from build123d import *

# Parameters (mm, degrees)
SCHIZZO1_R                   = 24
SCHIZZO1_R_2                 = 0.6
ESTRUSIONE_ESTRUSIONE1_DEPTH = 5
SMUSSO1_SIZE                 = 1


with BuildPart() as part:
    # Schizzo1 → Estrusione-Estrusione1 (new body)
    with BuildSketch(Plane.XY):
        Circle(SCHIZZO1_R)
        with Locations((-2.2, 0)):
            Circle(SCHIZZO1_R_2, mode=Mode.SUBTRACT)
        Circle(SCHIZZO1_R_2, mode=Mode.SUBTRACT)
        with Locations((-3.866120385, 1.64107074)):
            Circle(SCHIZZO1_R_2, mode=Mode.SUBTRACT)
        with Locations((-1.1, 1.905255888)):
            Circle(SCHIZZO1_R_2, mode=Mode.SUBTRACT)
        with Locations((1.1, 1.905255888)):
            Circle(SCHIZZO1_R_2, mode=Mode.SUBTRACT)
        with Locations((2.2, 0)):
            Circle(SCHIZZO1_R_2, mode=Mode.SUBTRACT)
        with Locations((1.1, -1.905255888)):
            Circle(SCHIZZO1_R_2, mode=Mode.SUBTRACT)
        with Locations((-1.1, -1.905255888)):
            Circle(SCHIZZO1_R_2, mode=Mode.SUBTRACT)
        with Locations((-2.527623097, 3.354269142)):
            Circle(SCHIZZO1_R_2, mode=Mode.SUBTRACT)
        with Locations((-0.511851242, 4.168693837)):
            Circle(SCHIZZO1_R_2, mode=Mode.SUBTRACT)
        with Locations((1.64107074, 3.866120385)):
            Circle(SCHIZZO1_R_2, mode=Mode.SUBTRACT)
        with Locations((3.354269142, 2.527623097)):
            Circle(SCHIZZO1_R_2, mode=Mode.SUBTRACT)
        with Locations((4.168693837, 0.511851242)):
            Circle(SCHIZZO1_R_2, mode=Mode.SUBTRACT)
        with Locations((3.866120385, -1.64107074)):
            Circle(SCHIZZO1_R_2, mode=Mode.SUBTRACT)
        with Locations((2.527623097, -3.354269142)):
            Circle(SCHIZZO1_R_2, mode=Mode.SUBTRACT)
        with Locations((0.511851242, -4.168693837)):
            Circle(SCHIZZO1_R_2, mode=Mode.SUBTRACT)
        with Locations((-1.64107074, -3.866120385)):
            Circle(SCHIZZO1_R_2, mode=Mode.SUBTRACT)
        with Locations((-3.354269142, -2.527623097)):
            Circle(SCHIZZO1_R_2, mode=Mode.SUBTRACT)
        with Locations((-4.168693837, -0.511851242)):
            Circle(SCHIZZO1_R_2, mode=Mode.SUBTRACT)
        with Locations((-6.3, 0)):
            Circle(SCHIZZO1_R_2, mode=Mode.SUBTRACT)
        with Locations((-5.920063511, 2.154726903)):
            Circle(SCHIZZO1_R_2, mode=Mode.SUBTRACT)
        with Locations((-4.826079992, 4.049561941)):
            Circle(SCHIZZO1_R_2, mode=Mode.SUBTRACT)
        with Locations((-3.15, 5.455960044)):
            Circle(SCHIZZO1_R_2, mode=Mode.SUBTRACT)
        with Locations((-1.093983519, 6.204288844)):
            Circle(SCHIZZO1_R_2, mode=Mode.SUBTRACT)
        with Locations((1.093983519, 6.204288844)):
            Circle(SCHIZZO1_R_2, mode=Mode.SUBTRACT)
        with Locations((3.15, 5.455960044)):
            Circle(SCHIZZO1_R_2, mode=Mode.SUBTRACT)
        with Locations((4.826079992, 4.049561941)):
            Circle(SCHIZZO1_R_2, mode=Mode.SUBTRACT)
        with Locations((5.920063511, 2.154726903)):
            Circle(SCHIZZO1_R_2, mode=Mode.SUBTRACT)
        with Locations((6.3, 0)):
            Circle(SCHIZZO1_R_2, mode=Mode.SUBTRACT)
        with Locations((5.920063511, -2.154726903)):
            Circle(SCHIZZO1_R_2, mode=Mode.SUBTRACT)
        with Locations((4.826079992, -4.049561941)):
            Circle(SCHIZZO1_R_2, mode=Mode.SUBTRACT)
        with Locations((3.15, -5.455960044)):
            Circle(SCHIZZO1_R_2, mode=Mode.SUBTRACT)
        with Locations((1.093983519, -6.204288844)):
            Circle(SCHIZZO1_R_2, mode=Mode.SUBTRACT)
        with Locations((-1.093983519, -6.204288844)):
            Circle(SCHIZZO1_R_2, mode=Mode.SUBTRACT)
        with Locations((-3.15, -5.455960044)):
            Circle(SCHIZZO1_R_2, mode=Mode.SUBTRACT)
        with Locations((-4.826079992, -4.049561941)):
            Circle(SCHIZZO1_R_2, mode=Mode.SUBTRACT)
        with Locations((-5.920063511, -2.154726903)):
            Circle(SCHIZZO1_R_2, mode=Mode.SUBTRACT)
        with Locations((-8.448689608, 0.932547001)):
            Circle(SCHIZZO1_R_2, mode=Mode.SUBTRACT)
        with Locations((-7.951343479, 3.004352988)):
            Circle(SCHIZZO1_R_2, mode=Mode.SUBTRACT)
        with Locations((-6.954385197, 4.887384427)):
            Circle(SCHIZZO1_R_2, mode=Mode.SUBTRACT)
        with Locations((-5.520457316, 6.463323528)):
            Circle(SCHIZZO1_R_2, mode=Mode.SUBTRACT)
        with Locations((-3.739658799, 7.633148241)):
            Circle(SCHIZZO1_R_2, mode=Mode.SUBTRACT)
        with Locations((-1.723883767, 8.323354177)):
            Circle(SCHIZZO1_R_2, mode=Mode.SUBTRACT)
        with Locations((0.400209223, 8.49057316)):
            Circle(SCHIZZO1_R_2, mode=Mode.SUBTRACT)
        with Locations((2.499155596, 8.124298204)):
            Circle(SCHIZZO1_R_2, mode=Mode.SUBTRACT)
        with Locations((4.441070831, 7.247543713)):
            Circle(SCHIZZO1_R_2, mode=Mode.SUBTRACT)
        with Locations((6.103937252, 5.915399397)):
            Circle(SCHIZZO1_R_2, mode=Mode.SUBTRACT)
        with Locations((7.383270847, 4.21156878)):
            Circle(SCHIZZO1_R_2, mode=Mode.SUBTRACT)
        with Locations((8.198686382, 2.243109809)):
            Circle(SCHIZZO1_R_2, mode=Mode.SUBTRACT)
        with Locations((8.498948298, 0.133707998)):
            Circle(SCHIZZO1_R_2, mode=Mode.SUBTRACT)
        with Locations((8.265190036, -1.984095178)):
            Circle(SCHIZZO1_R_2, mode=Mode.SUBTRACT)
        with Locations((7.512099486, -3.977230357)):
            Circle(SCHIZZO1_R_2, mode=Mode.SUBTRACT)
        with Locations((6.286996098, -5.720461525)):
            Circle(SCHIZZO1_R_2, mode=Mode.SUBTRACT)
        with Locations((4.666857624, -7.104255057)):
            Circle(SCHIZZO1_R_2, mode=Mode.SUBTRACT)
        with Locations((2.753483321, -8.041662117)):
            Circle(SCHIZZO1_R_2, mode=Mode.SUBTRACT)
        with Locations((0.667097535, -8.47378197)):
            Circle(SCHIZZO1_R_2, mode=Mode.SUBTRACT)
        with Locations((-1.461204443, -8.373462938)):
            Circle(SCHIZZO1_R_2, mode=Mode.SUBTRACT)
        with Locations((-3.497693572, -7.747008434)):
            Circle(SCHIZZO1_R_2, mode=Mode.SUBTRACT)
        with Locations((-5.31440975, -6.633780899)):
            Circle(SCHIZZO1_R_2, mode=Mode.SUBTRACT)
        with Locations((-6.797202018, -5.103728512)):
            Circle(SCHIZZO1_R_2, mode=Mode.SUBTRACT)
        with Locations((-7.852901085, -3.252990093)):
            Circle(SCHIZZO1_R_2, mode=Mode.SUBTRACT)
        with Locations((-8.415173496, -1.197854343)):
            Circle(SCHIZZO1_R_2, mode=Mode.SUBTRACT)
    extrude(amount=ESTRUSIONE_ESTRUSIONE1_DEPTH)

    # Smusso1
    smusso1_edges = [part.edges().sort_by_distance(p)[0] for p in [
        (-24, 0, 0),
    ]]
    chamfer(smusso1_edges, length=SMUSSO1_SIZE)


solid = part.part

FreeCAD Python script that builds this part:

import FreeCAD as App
import Part
import Sketcher
from FreeCAD import Vector
Q = App.Units.Quantity


def edges_at(feature, points):
    """Names of the edges that pass closest to the given points."""
    edges = feature.Shape.Edges
    near = lambda p: min(range(len(edges)), key=lambda i: edges[i].distToShape(Part.Vertex(*p))[0])
    return sorted({f"Edge{near(p) + 1}" for p in points})

doc = App.newDocument("Part")
body = doc.addObject("PartDesign::Body", "Body")

# Sketch on XY plane
sketch1 = doc.addObject("Sketcher::SketchObject", "Sketch")
body.addObject(sketch1)
sketch1.AttachmentSupport = (doc.XY_Plane, [""])
sketch1.MapMode = "FlatFace"
sketch1.addGeometry([
    Part.Circle(Vector(0, 0, 0), Vector(0, 0, 1), 24),  # 0
    Part.Circle(Vector(-6.8, -5.1, 0), Vector(0, 0, 1), 0.6),  # 1
    Part.Circle(Vector(-5.3, -6.6, 0), Vector(0, 0, 1), 0.6),  # 2
    Part.Circle(Vector(-3.5, -7.7, 0), Vector(0, 0, 1), 0.6),  # 3
    Part.Circle(Vector(-1.5, -8.4, 0), Vector(0, 0, 1), 0.6),  # 4
    Part.Circle(Vector(-3.1, -5.5, 0), Vector(0, 0, 1), 0.6),  # 5
    Part.Circle(Vector(-1.1, -6.2, 0), Vector(0, 0, 1), 0.6),  # 6
    Part.Circle(Vector(-7.9, -3.3, 0), Vector(0, 0, 1), 0.6),  # 7
    Part.Circle(Vector(-4.8, -4, 0), Vector(0, 0, 1), 0.6),  # 8
    Part.Circle(Vector(-8.4, -1.2, 0), Vector(0, 0, 1), 0.6),  # 9
    Part.Circle(Vector(-5.9, -2.2, 0), Vector(0, 0, 1), 0.6),  # 10
    Part.Circle(Vector(-6.3, 0, 0), Vector(0, 0, 1), 0.6),  # 11
    Part.Circle(Vector(-3.4, -2.5, 0), Vector(0, 0, 1), 0.6),  # 12
    Part.Circle(Vector(-1.6, -3.9, 0), Vector(0, 0, 1), 0.6),  # 13
    Part.Circle(Vector(-4.2, -0.5, 0), Vector(0, 0, 1), 0.6),  # 14
    Part.Circle(Vector(-1.1, -1.9, 0), Vector(0, 0, 1), 0.6),  # 15
    Part.Circle(Vector(-2.2, 0, 0), Vector(0, 0, 1), 0.6),  # 16
    Part.Circle(Vector(0, 0, 0), Vector(0, 0, 1), 0.6),  # 17
    Part.Circle(Vector(0.7, -8.5, 0), Vector(0, 0, 1), 0.6),  # 18
    Part.Circle(Vector(2.8, -8, 0), Vector(0, 0, 1), 0.6),  # 19
    Part.Circle(Vector(1.1, -6.2, 0), Vector(0, 0, 1), 0.6),  # 20
    Part.Circle(Vector(3.1, -5.5, 0), Vector(0, 0, 1), 0.6),  # 21
    Part.Circle(Vector(4.7, -7.1, 0), Vector(0, 0, 1), 0.6),  # 22
    Part.Circle(Vector(6.3, -5.7, 0), Vector(0, 0, 1), 0.6),  # 23
    Part.Circle(Vector(0.5, -4.2, 0), Vector(0, 0, 1), 0.6),  # 24
    Part.Circle(Vector(2.5, -3.4, 0), Vector(0, 0, 1), 0.6),  # 25
    Part.Circle(Vector(1.1, -1.9, 0), Vector(0, 0, 1), 0.6),  # 26
    Part.Circle(Vector(2.2, 0, 0), Vector(0, 0, 1), 0.6),  # 27
    Part.Circle(Vector(3.9, -1.6, 0), Vector(0, 0, 1), 0.6),  # 28
    Part.Circle(Vector(4.8, -4, 0), Vector(0, 0, 1), 0.6),  # 29
    Part.Circle(Vector(7.5, -4, 0), Vector(0, 0, 1), 0.6),  # 30
    Part.Circle(Vector(5.9, -2.2, 0), Vector(0, 0, 1), 0.6),  # 31
    Part.Circle(Vector(6.3, 0, 0), Vector(0, 0, 1), 0.6),  # 32
    Part.Circle(Vector(8.3, -2, 0), Vector(0, 0, 1), 0.6),  # 33
    Part.Circle(Vector(-8.4, 0.9, 0), Vector(0, 0, 1), 0.6),  # 34
    Part.Circle(Vector(-5.9, 2.2, 0), Vector(0, 0, 1), 0.6),  # 35
    Part.Circle(Vector(-8, 3, 0), Vector(0, 0, 1), 0.6),  # 36
    Part.Circle(Vector(-4.8, 4, 0), Vector(0, 0, 1), 0.6),  # 37
    Part.Circle(Vector(-3.9, 1.6, 0), Vector(0, 0, 1), 0.6),  # 38
    Part.Circle(Vector(-1.1, 1.9, 0), Vector(0, 0, 1), 0.6),  # 39
    Part.Circle(Vector(-2.5, 3.4, 0), Vector(0, 0, 1), 0.6),  # 40
    Part.Circle(Vector(-0.5, 4.2, 0), Vector(0, 0, 1), 0.6),  # 41
    Part.Circle(Vector(-7, 4.9, 0), Vector(0, 0, 1), 0.6),  # 42
    Part.Circle(Vector(-5.5, 6.5, 0), Vector(0, 0, 1), 0.6),  # 43
    Part.Circle(Vector(-3.1, 5.5, 0), Vector(0, 0, 1), 0.6),  # 44
    Part.Circle(Vector(-1.1, 6.2, 0), Vector(0, 0, 1), 0.6),  # 45
    Part.Circle(Vector(-3.7, 7.6, 0), Vector(0, 0, 1), 0.6),  # 46
    Part.Circle(Vector(-1.7, 8.3, 0), Vector(0, 0, 1), 0.6),  # 47
    Part.Circle(Vector(1.1, 1.9, 0), Vector(0, 0, 1), 0.6),  # 48
    Part.Circle(Vector(4.2, 0.5, 0), Vector(0, 0, 1), 0.6),  # 49
    Part.Circle(Vector(1.6, 3.9, 0), Vector(0, 0, 1), 0.6),  # 50
    Part.Circle(Vector(3.4, 2.5, 0), Vector(0, 0, 1), 0.6),  # 51
    Part.Circle(Vector(5.9, 2.2, 0), Vector(0, 0, 1), 0.6),  # 52
    Part.Circle(Vector(8.5, 0.1, 0), Vector(0, 0, 1), 0.6),  # 53
    Part.Circle(Vector(8.2, 2.2, 0), Vector(0, 0, 1), 0.6),  # 54
    Part.Circle(Vector(4.8, 4, 0), Vector(0, 0, 1), 0.6),  # 55
    Part.Circle(Vector(7.4, 4.2, 0), Vector(0, 0, 1), 0.6),  # 56
    Part.Circle(Vector(1.1, 6.2, 0), Vector(0, 0, 1), 0.6),  # 57
    Part.Circle(Vector(3.1, 5.5, 0), Vector(0, 0, 1), 0.6),  # 58
    Part.Circle(Vector(0.4, 8.5, 0), Vector(0, 0, 1), 0.6),  # 59
    Part.Circle(Vector(4.4, 7.2, 0), Vector(0, 0, 1), 0.6),  # 60
    Part.Circle(Vector(2.5, 8.1, 0), Vector(0, 0, 1), 0.6),  # 61
    Part.Circle(Vector(6.1, 5.9, 0), Vector(0, 0, 1), 0.6),  # 62
], False)
sketch1.addConstraint([
    Sketcher.Constraint("Coincident", 0, 3, -1, 1),
    Sketcher.Constraint("Coincident", 17, 3, -1, 1),
    Sketcher.Constraint("Equal", 1, 2),
    Sketcher.Constraint("Equal", 2, 3),
    Sketcher.Constraint("Equal", 3, 4),
    Sketcher.Constraint("Equal", 4, 5),
    Sketcher.Constraint("Equal", 5, 6),
    Sketcher.Constraint("Equal", 6, 7),
    Sketcher.Constraint("Equal", 7, 8),
    Sketcher.Constraint("Equal", 8, 9),
    Sketcher.Constraint("Equal", 9, 10),
    Sketcher.Constraint("Equal", 10, 11),
    Sketcher.Constraint("Equal", 11, 12),
    Sketcher.Constraint("Equal", 12, 13),
    Sketcher.Constraint("Equal", 13, 14),
    Sketcher.Constraint("Equal", 14, 15),
    Sketcher.Constraint("Equal", 15, 16),
    Sketcher.Constraint("Equal", 16, 17),
    Sketcher.Constraint("Equal", 17, 18),
    Sketcher.Constraint("Equal", 18, 19),
    Sketcher.Constraint("Equal", 19, 20),
    Sketcher.Constraint("Equal", 20, 21),
    Sketcher.Constraint("Equal", 21, 22),
    Sketcher.Constraint("Equal", 22, 23),
    Sketcher.Constraint("Equal", 23, 24),
    Sketcher.Constraint("Equal", 24, 25),
    Sketcher.Constraint("Equal", 25, 26),
    Sketcher.Constraint("Equal", 26, 27),
    Sketcher.Constraint("Equal", 27, 28),
    Sketcher.Constraint("Equal", 28, 29),
    Sketcher.Constraint("Equal", 29, 30),
    Sketcher.Constraint("Equal", 30, 31),
    Sketcher.Constraint("Equal", 31, 32),
    Sketcher.Constraint("Equal", 32, 33),
    Sketcher.Constraint("Equal", 33, 34),
    Sketcher.Constraint("Equal", 34, 35),
    Sketcher.Constraint("Equal", 35, 36),
    Sketcher.Constraint("Equal", 36, 37),
    Sketcher.Constraint("Equal", 37, 38),
    Sketcher.Constraint("Equal", 38, 39),
    Sketcher.Constraint("Equal", 39, 40),
    Sketcher.Constraint("Equal", 40, 41),
    Sketcher.Constraint("Equal", 41, 42),
    Sketcher.Constraint("Equal", 42, 43),
    Sketcher.Constraint("Equal", 43, 44),
    Sketcher.Constraint("Equal", 44, 45),
    Sketcher.Constraint("Equal", 45, 46),
    Sketcher.Constraint("Equal", 46, 47),
    Sketcher.Constraint("Equal", 47, 48),
    Sketcher.Constraint("Equal", 48, 49),
    Sketcher.Constraint("Equal", 49, 50),
    Sketcher.Constraint("Equal", 50, 51),
    Sketcher.Constraint("Equal", 51, 52),
    Sketcher.Constraint("Equal", 52, 53),
    Sketcher.Constraint("Equal", 53, 54),
    Sketcher.Constraint("Equal", 54, 55),
    Sketcher.Constraint("Equal", 55, 56),
    Sketcher.Constraint("Equal", 56, 57),
    Sketcher.Constraint("Equal", 57, 58),
    Sketcher.Constraint("Equal", 58, 59),
    Sketcher.Constraint("Equal", 59, 60),
    Sketcher.Constraint("Equal", 60, 61),
    Sketcher.Constraint("Equal", 61, 62),
    Sketcher.Constraint("Symmetric", 16, 3, 27, 3, -1, 1),
    Sketcher.Constraint("Symmetric", 11, 3, 32, 3, -1, 1),
    Sketcher.Constraint("Symmetric", 31, 3, 35, 3, -1, 1),
    Sketcher.Constraint("Symmetric", 29, 3, 37, 3, -1, 1),
    Sketcher.Constraint("Symmetric", 28, 3, 38, 3, -1, 1),
    Sketcher.Constraint("Symmetric", 26, 3, 39, 3, -1, 1),
    Sketcher.Constraint("Symmetric", 25, 3, 40, 3, -1, 1),
    Sketcher.Constraint("Symmetric", 24, 3, 41, 3, -1, 1),
    Sketcher.Constraint("Symmetric", 21, 3, 44, 3, -1, 1),
    Sketcher.Constraint("Symmetric", 20, 3, 45, 3, -1, 1),
    Sketcher.Constraint("Symmetric", 15, 3, 48, 3, -1, 1),
    Sketcher.Constraint("Symmetric", 14, 3, 49, 3, -1, 1),
    Sketcher.Constraint("Symmetric", 13, 3, 50, 3, -1, 1),
    Sketcher.Constraint("Symmetric", 12, 3, 51, 3, -1, 1),
    Sketcher.Constraint("Symmetric", 10, 3, 52, 3, -1, 1),
    Sketcher.Constraint("Symmetric", 8, 3, 55, 3, -1, 1),
    Sketcher.Constraint("Symmetric", 6, 3, 57, 3, -1, 1),
    Sketcher.Constraint("Symmetric", 5, 3, 58, 3, -1, 1),
    Sketcher.Constraint("Symmetric", 6, 3, 20, 3, -2),
    Sketcher.Constraint("Symmetric", 5, 3, 21, 3, -2),
    Sketcher.Constraint("Symmetric", 15, 3, 26, 3, -2),
    Sketcher.Constraint("Symmetric", 8, 3, 29, 3, -2),
    Sketcher.Constraint("Symmetric", 10, 3, 31, 3, -2),
    Sketcher.Constraint("PointOnObject", 11, 3, -1),
    Sketcher.Constraint("PointOnObject", 16, 3, -1),
    Sketcher.Constraint("Diameter", 0, Q("48 mm")),
    Sketcher.Constraint("Diameter", 1, Q("1.2 mm")),
    Sketcher.Constraint("DistanceX", 11, 3, -1, 1, Q("6.3 mm")),
    Sketcher.Constraint("DistanceX", 15, 3, -1, 1, Q("1.1 mm")),
    Sketcher.Constraint("DistanceX", 16, 3, -1, 1, Q("2.2 mm")),
    Sketcher.Constraint("DistanceX", 5, 3, -1, 1, Q("3.15 mm")),
    Sketcher.Constraint("DistanceX", 7, 3, -1, 1, Q("7.852901 mm")),
    Sketcher.Constraint("DistanceX", -1, 1, 30, 3, Q("7.512099 mm")),
    Sketcher.Constraint("DistanceY", -1, 1, 61, 3, Q("8.124298 mm")),
    Sketcher.Constraint("DistanceY", -1, 1, 62, 3, Q("5.915399 mm")),
    Sketcher.Constraint("DistanceY", 1, 3, -1, 1, Q("5.103729 mm")),
    Sketcher.Constraint("DistanceX", 2, 3, -1, 1, Q("5.31441 mm")),
    Sketcher.Constraint("DistanceY", 2, 3, -1, 1, Q("6.633781 mm")),
    Sketcher.Constraint("DistanceY", 3, 3, -1, 1, Q("7.747008 mm")),
    Sketcher.Constraint("DistanceY", 5, 3, -1, 1, Q("5.45596 mm")),
    Sketcher.Constraint("DistanceY", 6, 3, -1, 1, Q("6.204289 mm")),
    Sketcher.Constraint("DistanceY", 7, 3, -1, 1, Q("3.25299 mm")),
    Sketcher.Constraint("DistanceX", 8, 3, -1, 1, Q("4.82608 mm")),
    Sketcher.Constraint("DistanceY", 8, 3, -1, 1, Q("4.049562 mm")),
    Sketcher.Constraint("DistanceX", 12, 3, -1, 1, Q("3.354269 mm")),
    Sketcher.Constraint("DistanceX", 13, 3, -1, 1, Q("1.641071 mm")),
    Sketcher.Constraint("DistanceY", 13, 3, -1, 1, Q("3.86612 mm")),
    Sketcher.Constraint("DistanceY", 14, 3, -1, 1, Q("0.511851 mm")),
    Sketcher.Constraint("DistanceY", 18, 3, -1, 1, Q("8.473782 mm")),
    Sketcher.Constraint("DistanceY", 23, 3, -1, 1, Q("5.720462 mm")),
    Sketcher.Constraint("DistanceX", -1, 1, 24, 3, Q("0.511851 mm")),
    Sketcher.Constraint("DistanceY", 25, 3, -1, 1, Q("3.354269 mm")),
    Sketcher.Constraint("DistanceX", -1, 1, 28, 3, Q("3.86612 mm")),
    Sketcher.Constraint("DistanceY", 28, 3, -1, 1, Q("1.641071 mm")),
    Sketcher.Constraint("DistanceY", 30, 3, -1, 1, Q("3.97723 mm")),
    Sketcher.Constraint("DistanceX", -1, 1, 33, 3, Q("8.26519 mm")),
    Sketcher.Constraint("DistanceX", 34, 3, -1, 1, Q("8.44869 mm")),
    Sketcher.Constraint("DistanceX", 46, 3, -1, 1, Q("3.739659 mm")),
    Sketcher.Constraint("DistanceY", -1, 1, 46, 3, Q("7.633148 mm")),
    Sketcher.Constraint("DistanceX", -1, 1, 53, 3, Q("8.498948 mm")),
    Sketcher.Constraint("DistanceY", -1, 1, 54, 3, Q("2.24311 mm")),
    Sketcher.Constraint("DistanceX", -1, 1, 56, 3, Q("7.383271 mm")),
    Sketcher.Constraint("DistanceY", -1, 1, 56, 3, Q("4.211569 mm")),
    Sketcher.Constraint("DistanceX", -1, 1, 59, 3, Q("0.400209 mm")),
    Sketcher.Constraint("DistanceX", -1, 1, 60, 3, Q("4.441071 mm")),
    Sketcher.Constraint("DistanceX", 1, 3, -1, 1, Q("6.797202 mm")),
    Sketcher.Constraint("DistanceX", 3, 3, -1, 1, Q("3.497694 mm")),
    Sketcher.Constraint("DistanceX", 4, 3, -1, 1, Q("1.461204 mm")),
    Sketcher.Constraint("DistanceY", 4, 3, -1, 1, Q("8.373463 mm")),
    Sketcher.Constraint("DistanceX", 6, 3, -1, 1, Q("1.093984 mm")),
    Sketcher.Constraint("DistanceX", 9, 3, -1, 1, Q("8.415173 mm")),
    Sketcher.Constraint("DistanceY", 9, 3, -1, 1, Q("1.197854 mm")),
    Sketcher.Constraint("DistanceX", 10, 3, -1, 1, Q("5.920064 mm")),
    Sketcher.Constraint("DistanceY", 10, 3, -1, 1, Q("2.154727 mm")),
    Sketcher.Constraint("DistanceY", 12, 3, -1, 1, Q("2.527623 mm")),
    Sketcher.Constraint("DistanceX", 14, 3, -1, 1, Q("4.168694 mm")),
    Sketcher.Constraint("DistanceY", 15, 3, -1, 1, Q("1.905256 mm")),
    Sketcher.Constraint("DistanceX", -1, 1, 18, 3, Q("0.667098 mm")),
    Sketcher.Constraint("DistanceX", -1, 1, 19, 3, Q("2.753483 mm")),
    Sketcher.Constraint("DistanceY", 19, 3, -1, 1, Q("8.041662 mm")),
    Sketcher.Constraint("DistanceX", -1, 1, 22, 3, Q("4.666858 mm")),
    Sketcher.Constraint("DistanceY", 22, 3, -1, 1, Q("7.104255 mm")),
    Sketcher.Constraint("DistanceX", -1, 1, 23, 3, Q("6.286996 mm")),
    Sketcher.Constraint("DistanceY", 24, 3, -1, 1, Q("4.168694 mm")),
    Sketcher.Constraint("DistanceX", -1, 1, 25, 3, Q("2.527623 mm")),
    Sketcher.Constraint("DistanceY", 33, 3, -1, 1, Q("1.984095 mm")),
    Sketcher.Constraint("DistanceY", -1, 1, 34, 3, Q("0.932547 mm")),
    Sketcher.Constraint("DistanceX", 36, 3, -1, 1, Q("7.951343 mm")),
    Sketcher.Constraint("DistanceY", -1, 1, 36, 3, Q("3.004353 mm")),
    Sketcher.Constraint("DistanceX", 42, 3, -1, 1, Q("6.954385 mm")),
    Sketcher.Constraint("DistanceY", -1, 1, 42, 3, Q("4.887384 mm")),
    Sketcher.Constraint("DistanceX", 43, 3, -1, 1, Q("5.520457 mm")),
    Sketcher.Constraint("DistanceY", -1, 1, 43, 3, Q("6.463324 mm")),
    Sketcher.Constraint("DistanceX", 47, 3, -1, 1, Q("1.723884 mm")),
    Sketcher.Constraint("DistanceY", -1, 1, 47, 3, Q("8.323354 mm")),
    Sketcher.Constraint("DistanceY", -1, 1, 53, 3, Q("0.133708 mm")),
    Sketcher.Constraint("DistanceX", -1, 1, 54, 3, Q("8.198686 mm")),
    Sketcher.Constraint("DistanceY", -1, 1, 59, 3, Q("8.490573 mm")),
    Sketcher.Constraint("DistanceY", -1, 1, 60, 3, Q("7.247544 mm")),
    Sketcher.Constraint("DistanceX", -1, 1, 61, 3, Q("2.499156 mm")),
    Sketcher.Constraint("DistanceX", -1, 1, 62, 3, Q("6.103937 mm")),
])
pad1 = doc.addObject("PartDesign::Pad", "Pad")
body.addObject(pad1)
pad1.Profile = sketch1
pad1.Length = 5
doc.recompute()

chamfer = doc.addObject("PartDesign::Chamfer", "Chamfer")
body.addObject(chamfer)
chamfer.Base = (pad1, edges_at(pad1, [(-24, 0, 0)]))
chamfer.Size = 1

doc.recompute()
